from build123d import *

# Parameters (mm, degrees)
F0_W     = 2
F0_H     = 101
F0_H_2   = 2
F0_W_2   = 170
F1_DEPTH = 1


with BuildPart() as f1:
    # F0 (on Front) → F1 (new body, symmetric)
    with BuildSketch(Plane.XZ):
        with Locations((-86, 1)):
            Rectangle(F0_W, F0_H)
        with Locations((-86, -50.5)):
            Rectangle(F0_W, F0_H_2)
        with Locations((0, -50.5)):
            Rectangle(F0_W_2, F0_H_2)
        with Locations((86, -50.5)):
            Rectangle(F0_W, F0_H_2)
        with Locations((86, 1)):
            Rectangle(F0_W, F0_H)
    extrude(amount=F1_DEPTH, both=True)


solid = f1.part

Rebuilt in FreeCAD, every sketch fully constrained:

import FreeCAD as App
import Part
import Sketcher
from FreeCAD import Vector

doc = App.newDocument("Part")
body = doc.addObject("PartDesign::Body", "Body")

# Sketch on XZ plane
sketch1 = body.newObject("Sketcher::SketchObject", "Sketch")
sketch1.AttachmentSupport = (doc.getObject("XZ_Plane"), [""])
sketch1.MapMode = "FlatFace"
sketch1.addGeometry([
    Part.LineSegment(Vector(-87, 51.5, 0), Vector(-87, -51.5, 0)),  # 0
    Part.LineSegment(Vector(-87, -51.5, 0), Vector(87, -51.5, 0)),  # 1
    Part.LineSegment(Vector(87, -51.5, 0), Vector(87, 51.5, 0)),  # 2
    Part.LineSegment(Vector(87, 51.5, 0), Vector(85, 51.5, 0)),  # 3
    Part.LineSegment(Vector(85, 51.5, 0), Vector(85, -49.5, 0)),  # 4
    Part.LineSegment(Vector(85, -49.5, 0), Vector(-85, -49.5, 0)),  # 5
    Part.LineSegment(Vector(-85, -49.5, 0), Vector(-85, 51.5, 0)),  # 6
    Part.LineSegment(Vector(-85, 51.5, 0), Vector(-87, 51.5, 0)),  # 7
], False)
sketch1.addConstraint([
    Sketcher.Constraint("Coincident", 0, 2, 1, 1),
    Sketcher.Constraint("Coincident", 1, 2, 2, 1),
    Sketcher.Constraint("Coincident", 2, 2, 3, 1),
    Sketcher.Constraint("Coincident", 3, 2, 4, 1),
    Sketcher.Constraint("Coincident", 4, 2, 5, 1),
    Sketcher.Constraint("Coincident", 5, 2, 6, 1),
    Sketcher.Constraint("Coincident", 6, 2, 7, 1),
    Sketcher.Constraint("Coincident", 7, 2, 0, 1),
    Sketcher.Constraint("Vertical", 0),
    Sketcher.Constraint("Horizontal", 1),
    Sketcher.Constraint("Vertical", 2),
    Sketcher.Constraint("Horizontal", 3),
    Sketcher.Constraint("Vertical", 4),
    Sketcher.Constraint("Horizontal", 5),
    Sketcher.Constraint("Vertical", 6),
    Sketcher.Constraint("Horizontal", 7),
    Sketcher.Constraint("Symmetric", 0, 2, 2, 2, -1, 1),
    Sketcher.Constraint("Symmetric", 3, 2, 6, 2, -2),
    Sketcher.Constraint("DistanceX", 1, 1, 1, 2, 174.0),
    Sketcher.Constraint("DistanceX", 3, 2, 3, 1, 2.0),
    Sketcher.Constraint("DistanceY", 0, 2, 0, 1, 103.0),
    Sketcher.Constraint("DistanceY", 4, 2, 4, 1, 101.0),
])
pad1 = body.newObject("PartDesign::Pad", "Pad")
pad1.Profile = sketch1
pad1.Length = 2
pad1.Midplane = True

doc.recompute()
